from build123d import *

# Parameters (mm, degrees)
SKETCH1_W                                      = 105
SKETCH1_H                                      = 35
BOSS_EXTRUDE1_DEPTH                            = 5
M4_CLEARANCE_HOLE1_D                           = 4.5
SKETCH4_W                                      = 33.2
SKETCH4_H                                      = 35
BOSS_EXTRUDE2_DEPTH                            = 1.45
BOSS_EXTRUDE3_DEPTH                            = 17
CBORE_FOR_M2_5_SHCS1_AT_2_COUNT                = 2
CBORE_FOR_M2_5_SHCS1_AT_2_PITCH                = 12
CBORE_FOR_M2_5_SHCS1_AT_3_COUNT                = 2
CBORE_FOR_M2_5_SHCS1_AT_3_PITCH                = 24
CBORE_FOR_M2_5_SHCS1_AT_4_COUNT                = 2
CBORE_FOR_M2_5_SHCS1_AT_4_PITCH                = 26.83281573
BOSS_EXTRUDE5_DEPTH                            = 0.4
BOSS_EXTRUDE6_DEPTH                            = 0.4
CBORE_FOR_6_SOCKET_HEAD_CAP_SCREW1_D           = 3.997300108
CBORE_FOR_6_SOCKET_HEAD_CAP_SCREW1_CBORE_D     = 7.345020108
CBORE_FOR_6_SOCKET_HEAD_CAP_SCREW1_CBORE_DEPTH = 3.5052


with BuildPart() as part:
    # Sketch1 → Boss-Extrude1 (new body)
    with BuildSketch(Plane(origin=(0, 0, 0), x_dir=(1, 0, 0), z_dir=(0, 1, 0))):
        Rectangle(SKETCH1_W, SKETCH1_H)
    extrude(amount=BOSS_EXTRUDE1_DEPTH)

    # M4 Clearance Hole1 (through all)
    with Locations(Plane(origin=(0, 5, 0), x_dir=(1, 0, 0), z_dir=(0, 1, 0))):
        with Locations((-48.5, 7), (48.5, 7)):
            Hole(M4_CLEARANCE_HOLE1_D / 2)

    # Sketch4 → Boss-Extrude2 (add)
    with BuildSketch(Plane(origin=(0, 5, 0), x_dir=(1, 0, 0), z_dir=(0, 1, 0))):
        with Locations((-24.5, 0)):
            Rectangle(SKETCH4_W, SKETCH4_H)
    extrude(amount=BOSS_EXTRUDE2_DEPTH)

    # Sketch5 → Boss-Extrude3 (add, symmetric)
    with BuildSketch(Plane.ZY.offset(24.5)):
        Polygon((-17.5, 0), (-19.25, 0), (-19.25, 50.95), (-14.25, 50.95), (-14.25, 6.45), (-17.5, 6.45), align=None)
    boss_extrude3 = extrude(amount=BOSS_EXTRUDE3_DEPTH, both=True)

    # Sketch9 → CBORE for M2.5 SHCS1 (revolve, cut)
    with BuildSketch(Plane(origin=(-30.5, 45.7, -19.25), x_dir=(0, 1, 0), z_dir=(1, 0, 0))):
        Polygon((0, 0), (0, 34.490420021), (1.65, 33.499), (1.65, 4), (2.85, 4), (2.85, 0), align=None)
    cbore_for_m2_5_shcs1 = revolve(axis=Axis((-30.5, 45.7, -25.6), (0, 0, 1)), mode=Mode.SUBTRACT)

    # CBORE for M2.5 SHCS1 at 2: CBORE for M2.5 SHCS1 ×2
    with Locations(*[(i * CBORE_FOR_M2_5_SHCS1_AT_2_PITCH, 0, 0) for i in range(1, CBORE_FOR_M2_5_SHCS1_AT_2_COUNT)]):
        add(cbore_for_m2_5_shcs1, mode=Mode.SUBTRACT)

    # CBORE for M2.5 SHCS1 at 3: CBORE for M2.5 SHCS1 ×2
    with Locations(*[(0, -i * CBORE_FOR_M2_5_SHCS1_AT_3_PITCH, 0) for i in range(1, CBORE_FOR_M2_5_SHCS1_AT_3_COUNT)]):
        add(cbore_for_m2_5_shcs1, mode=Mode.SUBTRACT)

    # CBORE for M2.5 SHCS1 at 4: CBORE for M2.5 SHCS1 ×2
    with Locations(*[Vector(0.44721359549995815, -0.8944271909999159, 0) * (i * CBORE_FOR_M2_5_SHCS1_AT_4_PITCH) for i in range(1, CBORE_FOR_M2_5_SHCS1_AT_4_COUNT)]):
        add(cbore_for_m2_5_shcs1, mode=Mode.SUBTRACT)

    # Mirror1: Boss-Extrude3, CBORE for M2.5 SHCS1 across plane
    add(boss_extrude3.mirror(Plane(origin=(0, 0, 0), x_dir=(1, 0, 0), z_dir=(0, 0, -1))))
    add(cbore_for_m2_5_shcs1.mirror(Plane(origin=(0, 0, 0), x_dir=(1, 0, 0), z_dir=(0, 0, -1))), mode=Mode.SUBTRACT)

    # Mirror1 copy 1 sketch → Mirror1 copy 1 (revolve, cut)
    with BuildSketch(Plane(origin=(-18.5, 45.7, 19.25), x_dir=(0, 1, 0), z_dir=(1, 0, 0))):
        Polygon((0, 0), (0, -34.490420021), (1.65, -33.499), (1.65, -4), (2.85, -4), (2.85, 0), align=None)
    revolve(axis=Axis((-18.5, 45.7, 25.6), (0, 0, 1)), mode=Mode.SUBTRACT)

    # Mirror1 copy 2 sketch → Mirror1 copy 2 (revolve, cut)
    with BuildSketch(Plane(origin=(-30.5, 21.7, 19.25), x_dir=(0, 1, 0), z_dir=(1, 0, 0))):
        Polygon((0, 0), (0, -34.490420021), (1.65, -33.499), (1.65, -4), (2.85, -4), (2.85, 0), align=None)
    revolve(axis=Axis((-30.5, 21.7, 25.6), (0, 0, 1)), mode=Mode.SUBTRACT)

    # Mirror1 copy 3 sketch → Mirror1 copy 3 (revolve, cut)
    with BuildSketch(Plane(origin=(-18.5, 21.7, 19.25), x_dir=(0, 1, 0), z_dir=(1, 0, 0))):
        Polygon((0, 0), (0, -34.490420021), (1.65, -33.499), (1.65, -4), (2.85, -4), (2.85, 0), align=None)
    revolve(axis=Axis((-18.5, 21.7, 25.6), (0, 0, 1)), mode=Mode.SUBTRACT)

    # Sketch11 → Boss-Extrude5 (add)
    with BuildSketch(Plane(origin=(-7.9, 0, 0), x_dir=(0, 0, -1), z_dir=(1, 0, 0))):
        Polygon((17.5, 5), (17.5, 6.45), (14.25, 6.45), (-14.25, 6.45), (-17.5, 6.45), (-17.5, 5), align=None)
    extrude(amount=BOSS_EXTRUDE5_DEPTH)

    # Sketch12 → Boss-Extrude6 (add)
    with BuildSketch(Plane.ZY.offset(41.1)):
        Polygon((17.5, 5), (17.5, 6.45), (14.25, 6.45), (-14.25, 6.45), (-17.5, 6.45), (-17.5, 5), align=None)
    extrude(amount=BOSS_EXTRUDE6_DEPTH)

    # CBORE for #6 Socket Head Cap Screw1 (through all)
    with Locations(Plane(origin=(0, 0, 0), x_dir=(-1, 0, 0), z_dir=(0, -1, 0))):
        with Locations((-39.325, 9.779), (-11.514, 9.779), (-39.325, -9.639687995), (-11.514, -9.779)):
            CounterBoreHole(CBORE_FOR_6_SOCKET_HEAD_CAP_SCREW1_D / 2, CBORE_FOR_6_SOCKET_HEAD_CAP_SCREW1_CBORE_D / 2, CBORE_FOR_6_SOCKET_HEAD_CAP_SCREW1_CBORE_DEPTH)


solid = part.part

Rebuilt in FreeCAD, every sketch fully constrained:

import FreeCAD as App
import Part
import Sketcher

V = App.Vector
Q = App.Units.Quantity


def add_polygon(sketch, points):
    """Adds a closed chain of lines whose ends are joined by coincident constraints."""
    first, n = sketch.GeometryCount, len(points)
    for a, b in zip(points, points[1:] + points[:1]):
        sketch.addGeometry(Part.LineSegment(App.Vector(*a, 0), App.Vector(*b, 0)), False)
    for i in range(n):
        sketch.addConstraint(Sketcher.Constraint("Coincident", first + i, 2, first + (i + 1) % n, 1))

doc = App.newDocument("Part")
body = doc.addObject("PartDesign::Body", "Body")

# Sketch on XZ plane
sketch1 = body.newObject("Sketcher::SketchObject", "Sketch")
sketch1.AttachmentSupport = (doc.getObject("XZ_Plane"), [""])
sketch1.MapMode = "FlatFace"
add_polygon(sketch1, [(-52.5, -17.5), (-52.5, 17.5), (52.5, 17.5), (52.5, -17.5)])  # lines 0-3
sketch1.addConstraint([
    Sketcher.Constraint("Vertical", 0),
    Sketcher.Constraint("Horizontal", 1),
    Sketcher.Constraint("Vertical", 2),
    Sketcher.Constraint("Horizontal", 3),
    Sketcher.Constraint("Symmetric", 0, 2, 2, 2, -1, 1),
    Sketcher.Constraint("DistanceX", 1, 1, 1, 2, Q("105 mm")),
    Sketcher.Constraint("DistanceY", 0, 1, 0, 2, Q("35 mm")),
])
pad1 = body.newObject("PartDesign::Pad", "Pad")
pad1.Profile = sketch1
pad1.Length = 5
pad1.Reversed = True

# Sketch on XZ plane
sketch2 = body.newObject("Sketcher::SketchObject", "Sketch001")
sketch2.AttachmentSupport = (doc.getObject("XZ_Plane"), [""])
sketch2.MapMode = "FlatFace"
sketch2.AttachmentOffset = App.Placement(V(0, 0, -5), App.Rotation())
sketch2.addGeometry([
    Part.Circle(V(-48.5, -7, 0), V(0, 0, 1), 2.25),
    Part.Circle(V(48.5, -7, 0), V(0, 0, 1), 2.25),
], False)
sketch2.addConstraint([
    Sketcher.Constraint("Equal", 0, 1),
    Sketcher.Constraint("Symmetric", 0, 3, 1, 3, -2),
    Sketcher.Constraint("Diameter", 0, Q("4.5 mm")),
    Sketcher.Constraint("DistanceY", 0, 3, -1, 1, Q("7 mm")),
    Sketcher.Constraint("DistanceX", 0, 3, 1, 3, Q("97 mm")),
])
doc.recompute()
hole = body.newObject("PartDesign::Hole", "Hole")
hole.Profile = sketch2
hole.ThreadType = "None"
hole.Diameter = 4.5
hole.DepthType = "ThroughAll"
hole.Reversed = True

# Sketch on XZ plane
sketch3 = body.newObject("Sketcher::SketchObject", "Sketch002")
sketch3.AttachmentSupport = (doc.getObject("XZ_Plane"), [""])
sketch3.MapMode = "FlatFace"
sketch3.AttachmentOffset = App.Placement(V(0, 0, -5), App.Rotation())
add_polygon(sketch3, [(-41.1, -17.5), (-41.1, 17.5), (-7.9, 17.5), (-7.9, -17.5)])  # lines 0-3
sketch3.addConstraint([
    Sketcher.Constraint("Vertical", 0),
    Sketcher.Constraint("Horizontal", 1),
    Sketcher.Constraint("Vertical", 2),
    Sketcher.Constraint("Horizontal", 3),
    Sketcher.Constraint("DistanceY", 0, 1, 0, 2, Q("35 mm")),
    Sketcher.Constraint("DistanceX", 1, 1, 1, 2, Q("33.2 mm")),
    Sketcher.Constraint("DistanceX", 0, 2, -1, 1, Q("41.1 mm")),
    Sketcher.Constraint("DistanceY", -1, 1, 0, 2, Q("17.5 mm")),
])
pad2 = body.newObject("PartDesign::Pad", "Pad001")
pad2.Profile = sketch3
pad2.Length = 1.45
pad2.Reversed = True

# Sketch on YZ plane
sketch4 = body.newObject("Sketcher::SketchObject", "Sketch003")
sketch4.AttachmentSupport = (doc.getObject("YZ_Plane"), [""])
sketch4.MapMode = "FlatFace"
sketch4.AttachmentOffset = App.Placement(V(0, 0, -24.5), App.Rotation())
add_polygon(sketch4, [(0, -19.25), (0, -17.5), (6.45, -17.5), (6.45, -14.25), (50.95, -14.25), (50.95, -19.25)])  # lines 0-5
sketch4.addConstraint([
    Sketcher.Constraint("Vertical", 0),
    Sketcher.Constraint("Horizontal", 1),
    Sketcher.Constraint("Vertical", 2),
    Sketcher.Constraint("Horizontal", 3),
    Sketcher.Constraint("Vertical", 4),
    Sketcher.Constraint("Horizontal", 5),
    Sketcher.Constraint("PointOnObject", 0, 2, -2),
    Sketcher.Constraint("DistanceY", 4, 2, 4, 1, Q("5 mm")),
    Sketcher.Constraint("DistanceX", 3, 1, 3, 2, Q("44.5 mm")),
    Sketcher.Constraint("DistanceX", 1, 1, 1, 2, Q("6.45 mm")),
    Sketcher.Constraint("DistanceY", 0, 1, 0, 2, Q("1.75 mm")),
    Sketcher.Constraint("DistanceY", 0, 2, -1, 1, Q("17.5 mm")),
])
pad3 = body.newObject("PartDesign::Pad", "Pad002")
pad3.Profile = sketch4
pad3.Length = 34
pad3.Midplane = True

# Sketch on YZ plane
sketch5 = body.newObject("Sketcher::SketchObject", "Sketch004")
sketch5.AttachmentSupport = (doc.getObject("YZ_Plane"), [""])
sketch5.MapMode = "FlatFace"
sketch5.AttachmentOffset = App.Placement(V(0, 0, -30.5), App.Rotation())
add_polygon(sketch5, [(45.7, 15.24042), (45.7, -19.25), (48.55, -19.25), (48.55, -15.25), (47.35, -15.25), (47.35, 14.249)])  # lines 0-5
sketch5.addGeometry(Part.LineSegment(V(45.7, -19.25, 0), V(45.7, 15.24042, 0)), True)  # axis
sketch5.addConstraint([
    Sketcher.Constraint("Vertical", 0),
    Sketcher.Constraint("Horizontal", 1),
    Sketcher.Constraint("Vertical", 2),
    Sketcher.Constraint("Horizontal", 3),
    Sketcher.Constraint("Vertical", 4),
    Sketcher.Constraint("Vertical", 6),
    Sketcher.Constraint("Coincident", 6, 1, 0, 2),
    Sketcher.Constraint("Equal", 0, 6),
    Sketcher.Constraint("DistanceY", 2, 1, 2, 2, Q("4 mm")),
    Sketcher.Constraint("Angle", 5, Q("149 deg")),
    Sketcher.Constraint("DistanceX", 3, 2, 3, 1, Q("1.2 mm")),
    Sketcher.Constraint("DistanceX", 1, 1, 1, 2, Q("2.85 mm")),
    Sketcher.Constraint("DistanceX", -1, 1, 0, 2, Q("45.7 mm")),
    Sketcher.Constraint("DistanceY", 4, 1, 4, 2, Q("29.499 mm")),
    Sketcher.Constraint("DistanceY", 0, 2, -1, 1, Q("19.25 mm")),
])
groove = body.newObject("PartDesign::Groove", "Groove")
groove.Profile = sketch5
groove.ReferenceAxis = (sketch5, ["Axis0"])
groove.Angle = 360
doc.recompute()

linearpattern = body.newObject("PartDesign::LinearPattern", "LinearPattern")
linearpattern.Originals = [groove]
linearpattern.Direction = (doc.getObject("X_Axis"), [""])
linearpattern.Mode = "offset"
linearpattern.Offset = 12
linearpattern.Occurrences = 2
body.Tip = linearpattern
doc.recompute()

linearpattern2 = body.newObject("PartDesign::LinearPattern", "LinearPattern001")
linearpattern2.Originals = [groove]
linearpattern2.Direction = (doc.getObject("Y_Axis"), [""])
linearpattern2.Mode = "offset"
linearpattern2.Offset = 24
linearpattern2.Occurrences = 2
linearpattern2.Reversed = True
body.Tip = linearpattern2
doc.recompute()

datumline = body.newObject("PartDesign::Line", "DatumLine")
datumline.Placement = App.Placement(V(0, 0, 0), App.Rotation(V(0, 0, 1), V(0.447213595, -0.894427191, 0)))
linearpattern3 = body.newObject("PartDesign::LinearPattern", "LinearPattern002")
linearpattern3.Originals = [groove]
linearpattern3.Direction = (datumline, [""])
linearpattern3.Mode = "offset"
linearpattern3.Offset = 26.832816
linearpattern3.Occurrences = 2
body.Tip = linearpattern3
doc.recompute()

mirrored = body.newObject("PartDesign::Mirrored", "Mirrored")
mirrored.Originals = [pad3, groove]
mirrored.MirrorPlane = (doc.getObject("XY_Plane"), [""])
body.Tip = mirrored

# Sketch on YZ plane
sketch6 = body.newObject("Sketcher::SketchObject", "Sketch005")
sketch6.AttachmentSupport = (doc.getObject("YZ_Plane"), [""])
sketch6.MapMode = "FlatFace"
sketch6.AttachmentOffset = App.Placement(V(0, 0, -18.5), App.Rotation())
add_polygon(sketch6, [(45.7, 19.25), (45.7, -15.24042), (47.35, -14.249), (47.35, 15.25), (48.55, 15.25), (48.55, 19.25)])  # lines 0-5
sketch6.addGeometry(Part.LineSegment(V(45.7, -15.24042, 0), V(45.7, 19.25, 0)), True)  # axis
sketch6.addConstraint([
    Sketcher.Constraint("Vertical", 0),
    Sketcher.Constraint("Vertical", 2),
    Sketcher.Constraint("Horizontal", 3),
    Sketcher.Constraint("Vertical", 4),
    Sketcher.Constraint("Horizontal", 5),
    Sketcher.Constraint("Vertical", 6),
    Sketcher.Constraint("Coincident", 6, 1, 0, 2),
    Sketcher.Constraint("Horizontal", 4, 2, 6, 2),
    Sketcher.Constraint("DistanceY", 4, 1, 4, 2, Q("4 mm")),
    Sketcher.Constraint("Angle", 1, Q("31 deg")),
    Sketcher.Constraint("DistanceX", 3, 1, 3, 2, Q("1.2 mm")),
    Sketcher.Constraint("DistanceX", 5, 2, 5, 1, Q("2.85 mm")),
    Sketcher.Constraint("DistanceX", -1, 1, 0, 2, Q("45.7 mm")),
    Sketcher.Constraint("DistanceY", 2, 1, 2, 2, Q("29.499 mm")),
    Sketcher.Constraint("DistanceY", -1, 1, 2, 2, Q("15.25 mm")),
])
groove2 = body.newObject("PartDesign::Groove", "Groove001")
groove2.Profile = sketch6
groove2.ReferenceAxis = (sketch6, ["Axis0"])
groove2.Angle = 360

# Sketch on YZ plane
sketch7 = body.newObject("Sketcher::SketchObject", "Sketch006")
sketch7.AttachmentSupport = (doc.getObject("YZ_Plane"), [""])
sketch7.MapMode = "FlatFace"
sketch7.AttachmentOffset = App.Placement(V(0, 0, -30.5), App.Rotation())
add_polygon(sketch7, [(21.7, 19.25), (21.7, -15.24042), (23.35, -14.249), (23.35, 15.25), (24.55, 15.25), (24.55, 19.25)])  # lines 0-5
sketch7.addGeometry(Part.LineSegment(V(21.7, -15.24042, 0), V(21.7, 19.25, 0)), True)  # axis
sketch7.addConstraint([
    Sketcher.Constraint("Vertical", 0),
    Sketcher.Constraint("Vertical", 2),
    Sketcher.Constraint("Horizontal", 3),
    Sketcher.Constraint("Vertical", 4),
    Sketcher.Constraint("Horizontal", 5),
    Sketcher.Constraint("Vertical", 6),
    Sketcher.Constraint("Coincident", 6, 1, 0, 2),
    Sketcher.Constraint("Horizontal", 4, 2, 6, 2),
    Sketcher.Constraint("DistanceY", 4, 1, 4, 2, Q("4 mm")),
    Sketcher.Constraint("Angle", 1, Q("31 deg")),
    Sketcher.Constraint("DistanceX", 3, 1, 3, 2, Q("1.2 mm")),
    Sketcher.Constraint("DistanceX", 5, 2, 5, 1, Q("2.85 mm")),
    Sketcher.Constraint("DistanceX", -1, 1, 0, 2, Q("21.7 mm")),
    Sketcher.Constraint("DistanceY", 2, 1, 2, 2, Q("29.499 mm")),
    Sketcher.Constraint("DistanceY", -1, 1, 2, 2, Q("15.25 mm")),
])
groove3 = body.newObject("PartDesign::Groove", "Groove002")
groove3.Profile = sketch7
groove3.ReferenceAxis = (sketch7, ["Axis0"])
groove3.Angle = 360

# Sketch on YZ plane
sketch8 = body.newObject("Sketcher::SketchObject", "Sketch007")
sketch8.AttachmentSupport = (doc.getObject("YZ_Plane"), [""])
sketch8.MapMode = "FlatFace"
sketch8.AttachmentOffset = App.Placement(V(0, 0, -18.5), App.Rotation())
add_polygon(sketch8, [(21.7, 19.25), (21.7, -15.24042), (23.35, -14.249), (23.35, 15.25), (24.55, 15.25), (24.55, 19.25)])  # lines 0-5
sketch8.addGeometry(Part.LineSegment(V(21.7, -15.24042, 0), V(21.7, 19.25, 0)), True)  # axis
sketch8.addConstraint([
    Sketcher.Constraint("Vertical", 0),
    Sketcher.Constraint("Vertical", 2),
    Sketcher.Constraint("Horizontal", 3),
    Sketcher.Constraint("Vertical", 4),
    Sketcher.Constraint("Horizontal", 5),
    Sketcher.Constraint("Vertical", 6),
    Sketcher.Constraint("Coincident", 6, 1, 0, 2),
    Sketcher.Constraint("Horizontal", 4, 2, 6, 2),
    Sketcher.Constraint("DistanceY", 4, 1, 4, 2, Q("4 mm")),
    Sketcher.Constraint("Angle", 1, Q("31 deg")),
    Sketcher.Constraint("DistanceX", 3, 1, 3, 2, Q("1.2 mm")),
    Sketcher.Constraint("DistanceX", 5, 2, 5, 1, Q("2.85 mm")),
    Sketcher.Constraint("DistanceX", -1, 1, 0, 2, Q("21.7 mm")),
    Sketcher.Constraint("DistanceY", 2, 1, 2, 2, Q("29.499 mm")),
    Sketcher.Constraint("DistanceY", -1, 1, 2, 2, Q("15.25 mm")),
])
groove4 = body.newObject("PartDesign::Groove", "Groove003")
groove4.Profile = sketch8
groove4.ReferenceAxis = (sketch8, ["Axis0"])
groove4.Angle = 360

# Sketch on YZ plane
sketch9 = body.newObject("Sketcher::SketchObject", "Sketch008")
sketch9.AttachmentSupport = (doc.getObject("YZ_Plane"), [""])
sketch9.MapMode = "FlatFace"
sketch9.AttachmentOffset = App.Placement(V(0, 0, -7.9), App.Rotation())
add_polygon(sketch9, [(5, -17.5), (6.45, -17.5), (6.45, 17.5), (5, 17.5)])  # lines 0-3
sketch9.addConstraint([
    Sketcher.Constraint("Horizontal", 0),
    Sketcher.Constraint("Vertical", 1),
    Sketcher.Constraint("Horizontal", 2),
    Sketcher.Constraint("Vertical", 3),
    Sketcher.Constraint("DistanceY", 1, 1, 1, 2, Q("35 mm")),
    Sketcher.Constraint("DistanceX", -1, 1, 2, 2, Q("5 mm")),
    Sketcher.Constraint("DistanceX", 0, 1, 0, 2, Q("1.45 mm")),
    Sketcher.Constraint("DistanceY", 0, 2, -1, 1, Q("17.5 mm")),
])
pad4 = body.newObject("PartDesign::Pad", "Pad003")
pad4.Profile = sketch9
pad4.Length = 0.4

# Sketch on YZ plane
sketch10 = body.newObject("Sketcher::SketchObject", "Sketch009")
sketch10.AttachmentSupport = (doc.getObject("YZ_Plane"), [""])
sketch10.MapMode = "FlatFace"
sketch10.AttachmentOffset = App.Placement(V(0, 0, -41.1), App.Rotation())
add_polygon(sketch10, [(5, 17.5), (6.45, 17.5), (6.45, -17.5), (5, -17.5)])  # lines 0-3
sketch10.addConstraint([
    Sketcher.Constraint("Horizontal", 0),
    Sketcher.Constraint("Vertical", 1),
    Sketcher.Constraint("Horizontal", 2),
    Sketcher.Constraint("Vertical", 3),
    Sketcher.Constraint("DistanceY", 1, 2, 1, 1, Q("35 mm")),
    Sketcher.Constraint("DistanceX", -1, 1, 2, 2, Q("5 mm")),
    Sketcher.Constraint("DistanceX", 0, 1, 0, 2, Q("1.45 mm")),
    Sketcher.Constraint("DistanceY", -1, 1, 0, 2, Q("17.5 mm")),
])
pad5 = body.newObject("PartDesign::Pad", "Pad004")
pad5.Profile = sketch10
pad5.Length = 0.4
pad5.Reversed = True

# Sketch on XZ plane
sketch11 = body.newObject("Sketcher::SketchObject", "Sketch010")
sketch11.AttachmentSupport = (doc.getObject("XZ_Plane"), [""])
sketch11.MapMode = "FlatFace"
sketch11.addGeometry([
    Part.Circle(V(39.325, -9.779, 0), V(0, 0, 1), 1.99865),
    Part.Circle(V(11.514, -9.779, 0), V(0, 0, 1), 1.99865),
    Part.Circle(V(39.325, 9.639688, 0), V(0, 0, 1), 1.99865),
    Part.Circle(V(11.514, 9.779, 0), V(0, 0, 1), 1.99865),
], False)
sketch11.addConstraint([
    Sketcher.Constraint("Equal", 0, 1),
    Sketcher.Constraint("Equal", 1, 2),
    Sketcher.Constraint("Equal", 2, 3),
    Sketcher.Constraint("Symmetric", 1, 3, 3, 3, -1),
    Sketcher.Constraint("Horizontal", 0, 3, 1, 3),
    Sketcher.Constraint("Vertical", 0, 3, 2, 3),
    Sketcher.Constraint("Diameter", 0, Q("3.9973 mm")),
    Sketcher.Constraint("DistanceX", -1, 1, 0, 3, Q("39.325 mm")),
    Sketcher.Constraint("DistanceY", 0, 3, -1, 1, Q("9.779 mm")),
    Sketcher.Constraint("DistanceX", -1, 1, 1, 3, Q("11.514 mm")),
    Sketcher.Constraint("DistanceY", -1, 1, 2, 3, Q("9.639688 mm")),
])
doc.recompute()
hole2 = body.newObject("PartDesign::Hole", "Hole001")
hole2.Profile = sketch11
hole2.ThreadType = "None"
hole2.Diameter = 3.9973
hole2.DepthType = "ThroughAll"
hole2.HoleCutType = "Counterbore"
hole2.HoleCutDiameter = 7.34502
hole2.HoleCutDepth = 3.5052

doc.recompute()
